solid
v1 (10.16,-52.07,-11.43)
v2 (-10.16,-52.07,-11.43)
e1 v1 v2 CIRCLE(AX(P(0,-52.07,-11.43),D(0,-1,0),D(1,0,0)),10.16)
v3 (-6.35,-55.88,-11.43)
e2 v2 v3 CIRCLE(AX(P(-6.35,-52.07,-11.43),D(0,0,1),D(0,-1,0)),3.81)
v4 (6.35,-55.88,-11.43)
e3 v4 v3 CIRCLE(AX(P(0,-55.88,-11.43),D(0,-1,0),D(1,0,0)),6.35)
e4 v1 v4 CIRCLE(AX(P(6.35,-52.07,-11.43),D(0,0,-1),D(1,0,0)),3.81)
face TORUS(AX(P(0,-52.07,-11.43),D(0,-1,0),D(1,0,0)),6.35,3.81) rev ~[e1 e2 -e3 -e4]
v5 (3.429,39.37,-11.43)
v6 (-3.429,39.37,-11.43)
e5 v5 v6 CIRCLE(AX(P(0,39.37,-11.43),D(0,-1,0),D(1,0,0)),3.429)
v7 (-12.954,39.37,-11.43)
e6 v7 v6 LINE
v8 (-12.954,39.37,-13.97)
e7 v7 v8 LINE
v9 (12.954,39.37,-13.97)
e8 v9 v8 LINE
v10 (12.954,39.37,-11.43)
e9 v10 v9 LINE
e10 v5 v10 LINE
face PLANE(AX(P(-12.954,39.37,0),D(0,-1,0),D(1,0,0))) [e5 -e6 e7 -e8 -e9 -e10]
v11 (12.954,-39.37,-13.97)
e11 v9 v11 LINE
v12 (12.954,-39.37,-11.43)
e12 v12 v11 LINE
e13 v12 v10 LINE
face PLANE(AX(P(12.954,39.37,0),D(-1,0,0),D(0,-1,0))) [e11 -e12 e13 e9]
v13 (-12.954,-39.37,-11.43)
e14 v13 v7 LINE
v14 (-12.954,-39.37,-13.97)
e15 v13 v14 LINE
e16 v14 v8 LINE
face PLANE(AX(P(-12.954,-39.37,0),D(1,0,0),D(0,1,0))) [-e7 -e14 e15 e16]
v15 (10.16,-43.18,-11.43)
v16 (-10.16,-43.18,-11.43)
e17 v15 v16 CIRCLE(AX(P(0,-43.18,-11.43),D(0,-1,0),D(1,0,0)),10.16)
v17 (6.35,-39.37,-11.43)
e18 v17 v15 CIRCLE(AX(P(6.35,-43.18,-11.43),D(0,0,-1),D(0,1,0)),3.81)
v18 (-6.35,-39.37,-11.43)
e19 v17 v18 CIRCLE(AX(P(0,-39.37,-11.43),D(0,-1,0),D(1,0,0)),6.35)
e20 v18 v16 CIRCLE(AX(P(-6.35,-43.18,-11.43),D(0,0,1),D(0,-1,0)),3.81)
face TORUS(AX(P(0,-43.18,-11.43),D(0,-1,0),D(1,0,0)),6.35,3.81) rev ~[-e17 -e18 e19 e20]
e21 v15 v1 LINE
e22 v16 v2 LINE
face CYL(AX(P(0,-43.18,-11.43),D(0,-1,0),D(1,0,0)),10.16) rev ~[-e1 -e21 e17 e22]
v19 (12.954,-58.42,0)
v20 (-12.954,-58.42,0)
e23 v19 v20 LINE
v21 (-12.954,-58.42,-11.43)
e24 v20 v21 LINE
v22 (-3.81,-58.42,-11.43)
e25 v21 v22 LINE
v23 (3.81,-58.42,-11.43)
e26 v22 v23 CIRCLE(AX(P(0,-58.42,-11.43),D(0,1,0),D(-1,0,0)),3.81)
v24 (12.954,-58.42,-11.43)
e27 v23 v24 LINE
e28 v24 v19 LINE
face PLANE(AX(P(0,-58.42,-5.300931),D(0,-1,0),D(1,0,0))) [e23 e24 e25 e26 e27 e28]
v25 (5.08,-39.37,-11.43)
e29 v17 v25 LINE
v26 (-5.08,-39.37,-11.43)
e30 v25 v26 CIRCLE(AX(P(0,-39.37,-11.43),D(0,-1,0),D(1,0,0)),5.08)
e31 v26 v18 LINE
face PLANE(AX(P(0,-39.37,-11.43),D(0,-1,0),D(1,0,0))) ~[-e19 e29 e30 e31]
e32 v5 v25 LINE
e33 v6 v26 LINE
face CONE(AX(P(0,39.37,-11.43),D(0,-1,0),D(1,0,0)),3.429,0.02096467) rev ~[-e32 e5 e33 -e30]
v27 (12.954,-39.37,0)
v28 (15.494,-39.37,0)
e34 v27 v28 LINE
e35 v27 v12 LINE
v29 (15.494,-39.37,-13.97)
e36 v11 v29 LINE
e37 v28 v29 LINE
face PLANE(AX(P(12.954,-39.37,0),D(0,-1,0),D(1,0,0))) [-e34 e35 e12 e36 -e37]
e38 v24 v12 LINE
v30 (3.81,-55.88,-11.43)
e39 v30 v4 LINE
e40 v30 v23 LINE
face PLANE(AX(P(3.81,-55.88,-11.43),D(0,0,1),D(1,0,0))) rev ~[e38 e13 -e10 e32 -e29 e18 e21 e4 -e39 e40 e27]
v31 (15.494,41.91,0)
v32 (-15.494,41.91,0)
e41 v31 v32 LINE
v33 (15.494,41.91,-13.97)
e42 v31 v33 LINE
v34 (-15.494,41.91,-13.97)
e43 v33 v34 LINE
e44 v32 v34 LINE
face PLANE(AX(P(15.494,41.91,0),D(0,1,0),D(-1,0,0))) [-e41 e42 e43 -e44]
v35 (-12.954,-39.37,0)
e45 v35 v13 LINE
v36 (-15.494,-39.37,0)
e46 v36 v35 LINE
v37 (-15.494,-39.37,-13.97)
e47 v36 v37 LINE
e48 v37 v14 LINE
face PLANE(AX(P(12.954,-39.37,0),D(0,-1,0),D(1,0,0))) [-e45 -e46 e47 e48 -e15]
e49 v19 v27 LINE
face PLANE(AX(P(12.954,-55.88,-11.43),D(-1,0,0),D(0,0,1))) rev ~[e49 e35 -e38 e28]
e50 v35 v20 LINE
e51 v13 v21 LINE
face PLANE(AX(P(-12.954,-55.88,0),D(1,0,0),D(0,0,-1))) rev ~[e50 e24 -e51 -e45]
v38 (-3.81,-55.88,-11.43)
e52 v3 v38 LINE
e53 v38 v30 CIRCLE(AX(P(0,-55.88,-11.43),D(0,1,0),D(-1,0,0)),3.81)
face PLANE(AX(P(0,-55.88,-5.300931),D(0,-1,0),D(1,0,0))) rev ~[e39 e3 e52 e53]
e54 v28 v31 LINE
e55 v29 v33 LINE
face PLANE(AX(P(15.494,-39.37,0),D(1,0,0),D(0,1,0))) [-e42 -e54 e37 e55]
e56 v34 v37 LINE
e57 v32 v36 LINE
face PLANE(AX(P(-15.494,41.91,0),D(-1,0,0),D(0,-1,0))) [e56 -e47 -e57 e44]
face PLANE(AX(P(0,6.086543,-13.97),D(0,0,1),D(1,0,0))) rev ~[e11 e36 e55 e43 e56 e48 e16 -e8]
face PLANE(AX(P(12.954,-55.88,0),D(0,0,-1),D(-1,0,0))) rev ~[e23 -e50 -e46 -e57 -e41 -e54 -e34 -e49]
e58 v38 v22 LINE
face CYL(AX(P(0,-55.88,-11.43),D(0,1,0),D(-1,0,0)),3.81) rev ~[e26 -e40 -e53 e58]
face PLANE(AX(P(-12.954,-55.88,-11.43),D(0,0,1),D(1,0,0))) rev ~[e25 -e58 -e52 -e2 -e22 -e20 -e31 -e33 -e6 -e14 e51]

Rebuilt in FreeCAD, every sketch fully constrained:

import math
import FreeCAD as App
import Part
import Sketcher

V = App.Vector
Q = App.Units.Quantity

doc = App.newDocument("Part")
params = doc.addObject("Spreadsheet::Sheet", "Params")
for row, (alias, value) in enumerate([
    ("sketch1_height", "3.1 in"),
    ("sketch1_width", "1.02 in"),
    ("pad1_length", "0.45 in"),
    ("sketch2_width", "0.1 in"),
    ("sketch2_height", "3.2 in"),
    ("sketch2_height2", "3.1 in"),
    ("sketch2_width2", "1.22 in"),
    ("pad2_length", "0.55 in"),
    ("sketch3_width", "0.2 in"),
    ("sketch3_height", "3.1 in"),
    ("sketch3_width2", "0.135 in"),
    ("groove_angle", "360 deg"),
    ("sketch4_width", "1.02 in"),
    ("sketch4_height", "0.65 in"),
    ("pad3_length", "0.45 in"),
    ("sketch5_radius", "0.15 in"),
    ("sketch5_width", "0.25 in"),
    ("sketch5_height", "0.65 in"),
    ("groove2_angle", "360 deg"),
    ("sketch6_radius", "0.15 in"),
    ("sketch6_width", "1.02 in"),
    ("sketch6_height", "0.45 in"),
    ("pad4_length", "0.1 in"),
], start=1):
    params.set(f"A{row}", alias)
    params.set(f"B{row}", "=" + value)
    params.setAlias(f"B{row}", alias)

body = doc.addObject("PartDesign::Body", "Body")

sketch1 = body.newObject("Sketcher::SketchObject", "Sketch")
sketch1.AttachmentSupport = (doc.getObject("XY_Plane"), [""])
sketch1.MapMode = "FlatFace"
sketch1.addGeometry(Part.LineSegment(V(-13, 39, 0), V(-13, -39, 0)), False)
sketch1.addGeometry(Part.LineSegment(V(-13, -39, 0), V(13, -39, 0)), False)
sketch1.addGeometry(Part.LineSegment(V(13, -39, 0), V(13, 39, 0)), False)
sketch1.addGeometry(Part.LineSegment(V(13, 39, 0), V(-13, 39, 0)), False)
sketch1.addConstraint(Sketcher.Constraint("Coincident", 0, 2, 1, 1))
sketch1.addConstraint(Sketcher.Constraint("Coincident", 1, 2, 2, 1))
sketch1.addConstraint(Sketcher.Constraint("Coincident", 2, 2, 3, 1))
sketch1.addConstraint(Sketcher.Constraint("Coincident", 3, 2, 0, 1))
sketch1.addConstraint(Sketcher.Constraint("Vertical", 0))
sketch1.addConstraint(Sketcher.Constraint("Horizontal", 1))
sketch1.addConstraint(Sketcher.Constraint("Vertical", 2))
sketch1.addConstraint(Sketcher.Constraint("Horizontal", 3))
sketch1.addConstraint(Sketcher.Constraint("Symmetric", 0, 2, 2, 2, -1, 1))
sketch1.addConstraint(Sketcher.Constraint("DistanceY", 0, 2, 0, 1, Q("3.1 in")))
sketch1.addConstraint(Sketcher.Constraint("DistanceX", 1, 1, 1, 2, Q("1.02 in")))
sketch1.setExpression("Constraints[9]", "Params.sketch1_height")
sketch1.setExpression("Constraints[10]", "Params.sketch1_width")
pad1 = body.newObject("PartDesign::Pad", "Pad")
pad1.Profile = sketch1
pad1.setExpression("Length", "Params.pad1_length")
pad1.Reversed = True

sketch2 = body.newObject("Sketcher::SketchObject", "Sketch001")
sketch2.AttachmentSupport = (doc.getObject("XY_Plane"), [""])
sketch2.MapMode = "FlatFace"
sketch2.addGeometry(Part.LineSegment(V(15.5, 41.9, 0), V(-15.5, 41.9, 0)), False)
sketch2.addGeometry(Part.LineSegment(V(-15.5, 41.9, 0), V(-15.5, -39.4, 0)), False)
sketch2.addGeometry(Part.LineSegment(V(-15.5, -39.4, 0), V(-13, -39.4, 0)), False)
sketch2.addGeometry(Part.LineSegment(V(-13, -39.4, 0), V(-13, 39.4, 0)), False)
sketch2.addGeometry(Part.LineSegment(V(-13, 39.4, 0), V(13, 39.4, 0)), False)
sketch2.addGeometry(Part.LineSegment(V(13, 39.4, 0), V(13, -39.4, 0)), False)
sketch2.addGeometry(Part.LineSegment(V(13, -39.4, 0), V(15.5, -39.4, 0)), False)
sketch2.addGeometry(Part.LineSegment(V(15.5, -39.4, 0), V(15.5, 41.9, 0)), False)
sketch2.addConstraint(Sketcher.Constraint("Coincident", 0, 2, 1, 1))
sketch2.addConstraint(Sketcher.Constraint("Coincident", 1, 2, 2, 1))
sketch2.addConstraint(Sketcher.Constraint("Coincident", 2, 2, 3, 1))
sketch2.addConstraint(Sketcher.Constraint("Coincident", 3, 2, 4, 1))
sketch2.addConstraint(Sketcher.Constraint("Coincident", 4, 2, 5, 1))
sketch2.addConstraint(Sketcher.Constraint("Coincident", 5, 2, 6, 1))
sketch2.addConstraint(Sketcher.Constraint("Coincident", 6, 2, 7, 1))
sketch2.addConstraint(Sketcher.Constraint("Coincident", 7, 2, 0, 1))
sketch2.addConstraint(Sketcher.Constraint("Horizontal", 0))
sketch2.addConstraint(Sketcher.Constraint("Vertical", 1))
sketch2.addConstraint(Sketcher.Constraint("Horizontal", 2))
sketch2.addConstraint(Sketcher.Constraint("Vertical", 3))
sketch2.addConstraint(Sketcher.Constraint("Horizontal", 4))
sketch2.addConstraint(Sketcher.Constraint("Vertical", 5))
sketch2.addConstraint(Sketcher.Constraint("Horizontal", 6))
sketch2.addConstraint(Sketcher.Constraint("Vertical", 7))
sketch2.addConstraint(Sketcher.Constraint("Symmetric", 2, 2, 4, 2, -1, 1))
sketch2.addConstraint(Sketcher.Constraint("Symmetric", 1, 2, 6, 2, -2))
sketch2.addConstraint(Sketcher.Constraint("DistanceX", 2, 1, 2, 2, Q("0.1 in")))
sketch2.addConstraint(Sketcher.Constraint("DistanceY", 1, 2, 1, 1, Q("3.2 in")))
sketch2.addConstraint(Sketcher.Constraint("DistanceY", 3, 1, 3, 2, Q("3.1 in")))
sketch2.addConstraint(Sketcher.Constraint("DistanceX", 0, 2, 0, 1, Q("1.22 in")))
sketch2.setExpression("Constraints[18]", "Params.sketch2_width")
sketch2.setExpression("Constraints[19]", "Params.sketch2_height")
sketch2.setExpression("Constraints[20]", "Params.sketch2_height2")
sketch2.setExpression("Constraints[21]", "Params.sketch2_width2")
pad2 = body.newObject("PartDesign::Pad", "Pad001")
pad2.Profile = sketch2
pad2.setExpression("Length", "Params.pad2_length")
pad2.Reversed = True

sketch3 = body.newObject("Sketcher::SketchObject", "Sketch002")
sketch3.AttachmentSupport = (doc.getObject("XY_Plane"), [""])
sketch3.MapMode = "FlatFace"
sketch3.AttachmentOffset = App.Placement(V(0, 0, -0.45 * 25.4), App.Rotation())
sketch3.addGeometry(Part.LineSegment(V(3.4, 39.4, 0), V(5.1, -39.4, 0)), False)
sketch3.addGeometry(Part.LineSegment(V(5.1, -39.4, 0), V(0, -39.4, 0)), False)
sketch3.addGeometry(Part.LineSegment(V(0, -39.4, 0), V(0, 39.4, 0)), False)
sketch3.addGeometry(Part.LineSegment(V(0, 39.4, 0), V(3.4, 39.4, 0)), False)
sketch3.addConstraint(Sketcher.Constraint("Coincident", 0, 2, 1, 1))
sketch3.addConstraint(Sketcher.Constraint("Coincident", 1, 2, 2, 1))
sketch3.addConstraint(Sketcher.Constraint("Coincident", 2, 2, 3, 1))
sketch3.addConstraint(Sketcher.Constraint("Coincident", 3, 2, 0, 1))
sketch3.addConstraint(Sketcher.Constraint("Horizontal", 1))
sketch3.addConstraint(Sketcher.Constraint("Vertical", 2))
sketch3.addConstraint(Sketcher.Constraint("Horizontal", 3))
sketch3.addConstraint(Sketcher.Constraint("Symmetric", 1, 2, 2, 2, -1, 1))
sketch3.addConstraint(Sketcher.Constraint("DistanceX", 1, 2, 1, 1, Q("0.2 in")))
sketch3.addConstraint(Sketcher.Constraint("DistanceY", 2, 1, 2, 2, Q("3.1 in")))
sketch3.addConstraint(Sketcher.Constraint("DistanceX", 3, 1, 3, 2, Q("0.135 in")))
sketch3.setExpression("Constraints[8]", "Params.sketch3_width")
sketch3.setExpression("Constraints[9]", "Params.sketch3_height")
sketch3.setExpression("Constraints[10]", "Params.sketch3_width2")
groove = body.newObject("PartDesign::Groove", "Groove")
groove.Profile = sketch3
groove.ReferenceAxis = (sketch3, ["V_Axis"])
groove.setExpression("Angle", "Params.groove_angle")

sketch4 = body.newObject("Sketcher::SketchObject", "Sketch003")
sketch4.AttachmentSupport = (doc.getObject("XY_Plane"), [""])
sketch4.MapMode = "FlatFace"
sketch4.addGeometry(Part.LineSegment(V(13, -56, 0), V(13, -39, 0)), False)
sketch4.addGeometry(Part.LineSegment(V(13, -39, 0), V(-13, -39, 0)), False)
sketch4.addGeometry(Part.LineSegment(V(-13, -39, 0), V(-13, -56, 0)), False)
sketch4.addGeometry(Part.LineSegment(V(-13, -56, 0), V(13, -56, 0)), False)
sketch4.addConstraint(Sketcher.Constraint("Coincident", 0, 2, 1, 1))
sketch4.addConstraint(Sketcher.Constraint("Coincident", 1, 2, 2, 1))
sketch4.addConstraint(Sketcher.Constraint("Coincident", 2, 2, 3, 1))
sketch4.addConstraint(Sketcher.Constraint("Coincident", 3, 2, 0, 1))
sketch4.addConstraint(Sketcher.Constraint("Vertical", 0))
sketch4.addConstraint(Sketcher.Constraint("Horizontal", 1))
sketch4.addConstraint(Sketcher.Constraint("Vertical", 2))
sketch4.addConstraint(Sketcher.Constraint("Horizontal", 3))
sketch4.addConstraint(Sketcher.Constraint("DistanceX", 1, 2, 1, 1, Q("1.02 in")))
sketch4.addConstraint(Sketcher.Constraint("DistanceY", 0, 1, 0, 2, Q("0.65 in")))
sketch4.addConstraint(Sketcher.Constraint("DistanceY", 2, 2, -1, 1, Q("2.2 in")))
sketch4.addConstraint(Sketcher.Constraint("DistanceX", -1, 1, 0, 2, Q("0.51 in")))
sketch4.setExpression("Constraints[8]", "Params.sketch4_width")
sketch4.setExpression("Constraints[9]", "Params.sketch4_height")
pad3 = body.newObject("PartDesign::Pad", "Pad002")
pad3.Profile = sketch4
pad3.setExpression("Length", "Params.pad3_length")
pad3.Reversed = True

sketch5 = body.newObject("Sketcher::SketchObject", "Sketch004")
sketch5.AttachmentSupport = (doc.getObject("XY_Plane"), [""])
sketch5.MapMode = "FlatFace"
sketch5.AttachmentOffset = App.Placement(V(0, 0, -0.45 * 25.4), App.Rotation())
sketch5.addGeometry(Part.LineSegment(V(6.3, -55.9, 0), V(0, -55.9, 0)), False)
sketch5.addGeometry(Part.LineSegment(V(0, -55.9, 0), V(0, -39.4, 0)), False)
sketch5.addGeometry(Part.LineSegment(V(0, -39.4, 0), V(6.3, -39.4, 0)), False)
sketch5.addGeometry(Part.ArcOfCircle(Part.Circle(V(6.3, -43.2, 0), V(0, 0, 1), 3.8), math.radians(0), math.radians(90)), False)
sketch5.addGeometry(Part.LineSegment(V(10.2, -43.2, 0), V(10.2, -52.1, 0)), False)
sketch5.addGeometry(Part.ArcOfCircle(Part.Circle(V(6.3, -52.1, 0), V(0, 0, 1), 3.8), math.radians(-90), math.radians(0)), False)
sketch5.addConstraint(Sketcher.Constraint("Coincident", 0, 2, 1, 1))
sketch5.addConstraint(Sketcher.Constraint("Coincident", 1, 2, 2, 1))
sketch5.addConstraint(Sketcher.Constraint("Tangent", 2, 2, 3, 2))
sketch5.addConstraint(Sketcher.Constraint("Tangent", 3, 1, 4, 1))
sketch5.addConstraint(Sketcher.Constraint("Tangent", 4, 2, 5, 2))
sketch5.addConstraint(Sketcher.Constraint("Tangent", 5, 1, 0, 1))
sketch5.addConstraint(Sketcher.Constraint("Horizontal", 0))
sketch5.addConstraint(Sketcher.Constraint("Vertical", 1))
sketch5.addConstraint(Sketcher.Constraint("Horizontal", 2))
sketch5.addConstraint(Sketcher.Constraint("Vertical", 4))
sketch5.addConstraint(Sketcher.Constraint("Equal", 3, 5))
sketch5.addConstraint(Sketcher.Constraint("PointOnObject", 0, 2, -2))
sketch5.addConstraint(Sketcher.Constraint("Radius", 3, Q("0.15 in")))
sketch5.addConstraint(Sketcher.Constraint("DistanceX", 0, 2, 0, 1, Q("0.25 in")))
sketch5.addConstraint(Sketcher.Constraint("DistanceY", 1, 1, 1, 2, Q("0.65 in")))
sketch5.addConstraint(Sketcher.Constraint("DistanceY", 3, 3, -1, 1, Q("1.7 in")))
sketch5.setExpression("Constraints[12]", "Params.sketch5_radius")
sketch5.setExpression("Constraints[13]", "Params.sketch5_width")
sketch5.setExpression("Constraints[14]", "Params.sketch5_height")
groove2 = body.newObject("PartDesign::Groove", "Groove001")
groove2.Profile = sketch5
groove2.ReferenceAxis = (sketch5, ["V_Axis"])
groove2.setExpression("Angle", "Params.groove2_angle")

sketch6 = body.newObject("Sketcher::SketchObject", "Sketch005")
sketch6.AttachmentSupport = (doc.getObject("XZ_Plane"), [""])
sketch6.MapMode = "FlatFace"
sketch6.AttachmentOffset = App.Placement(V(0, 0, 2.2 * 25.4), App.Rotation())
sketch6.addGeometry(Part.LineSegment(V(13, 0, 0), V(-13, 0, 0)), False)
sketch6.addGeometry(Part.LineSegment(V(-13, 0, 0), V(-13, -11.4, 0)), False)
sketch6.addGeometry(Part.LineSegment(V(-13, -11.4, 0), V(-3.8, -11.4, 0)), False)
sketch6.addGeometry(Part.ArcOfCircle(Part.Circle(V(0, -11.4, 0), V(0, 0, 1), 3.8), math.radians(0), math.radians(180)), False)
sketch6.addGeometry(Part.LineSegment(V(3.8, -11.4, 0), V(13, -11.4, 0)), False)
sketch6.addGeometry(Part.LineSegment(V(13, -11.4, 0), V(13, 0, 0)), False)
sketch6.addConstraint(Sketcher.Constraint("Coincident", 0, 2, 1, 1))
sketch6.addConstraint(Sketcher.Constraint("Coincident", 1, 2, 2, 1))
sketch6.addConstraint(Sketcher.Constraint("Coincident", 2, 2, 3, 2))
sketch6.addConstraint(Sketcher.Constraint("Coincident", 3, 1, 4, 1))
sketch6.addConstraint(Sketcher.Constraint("Coincident", 4, 2, 5, 1))
sketch6.addConstraint(Sketcher.Constraint("Coincident", 5, 2, 0, 1))
sketch6.addConstraint(Sketcher.Constraint("Horizontal", 0))
sketch6.addConstraint(Sketcher.Constraint("Vertical", 1))
sketch6.addConstraint(Sketcher.Constraint("Horizontal", 2))
sketch6.addConstraint(Sketcher.Constraint("Horizontal", 4))
sketch6.addConstraint(Sketcher.Constraint("Vertical", 5))
sketch6.addConstraint(Sketcher.Constraint("Symmetric", 0, 2, 5, 2, -1, 1))
sketch6.addConstraint(Sketcher.Constraint("Symmetric", 2, 2, 3, 1, -2))
sketch6.addConstraint(Sketcher.Constraint("Horizontal", 3, 3, 1, 2))
sketch6.addConstraint(Sketcher.Constraint("Radius", 3, Q("0.15 in")))
sketch6.addConstraint(Sketcher.Constraint("DistanceX", 0, 2, 0, 1, Q("1.02 in")))
sketch6.addConstraint(Sketcher.Constraint("DistanceY", 1, 2, 1, 1, Q("0.45 in")))
sketch6.setExpression("Constraints[14]", "Params.sketch6_radius")
sketch6.setExpression("Constraints[15]", "Params.sketch6_width")
sketch6.setExpression("Constraints[16]", "Params.sketch6_height")
pad4 = body.newObject("PartDesign::Pad", "Pad003")
pad4.Profile = sketch6
pad4.setExpression("Length", "Params.pad4_length")

doc.recompute()
